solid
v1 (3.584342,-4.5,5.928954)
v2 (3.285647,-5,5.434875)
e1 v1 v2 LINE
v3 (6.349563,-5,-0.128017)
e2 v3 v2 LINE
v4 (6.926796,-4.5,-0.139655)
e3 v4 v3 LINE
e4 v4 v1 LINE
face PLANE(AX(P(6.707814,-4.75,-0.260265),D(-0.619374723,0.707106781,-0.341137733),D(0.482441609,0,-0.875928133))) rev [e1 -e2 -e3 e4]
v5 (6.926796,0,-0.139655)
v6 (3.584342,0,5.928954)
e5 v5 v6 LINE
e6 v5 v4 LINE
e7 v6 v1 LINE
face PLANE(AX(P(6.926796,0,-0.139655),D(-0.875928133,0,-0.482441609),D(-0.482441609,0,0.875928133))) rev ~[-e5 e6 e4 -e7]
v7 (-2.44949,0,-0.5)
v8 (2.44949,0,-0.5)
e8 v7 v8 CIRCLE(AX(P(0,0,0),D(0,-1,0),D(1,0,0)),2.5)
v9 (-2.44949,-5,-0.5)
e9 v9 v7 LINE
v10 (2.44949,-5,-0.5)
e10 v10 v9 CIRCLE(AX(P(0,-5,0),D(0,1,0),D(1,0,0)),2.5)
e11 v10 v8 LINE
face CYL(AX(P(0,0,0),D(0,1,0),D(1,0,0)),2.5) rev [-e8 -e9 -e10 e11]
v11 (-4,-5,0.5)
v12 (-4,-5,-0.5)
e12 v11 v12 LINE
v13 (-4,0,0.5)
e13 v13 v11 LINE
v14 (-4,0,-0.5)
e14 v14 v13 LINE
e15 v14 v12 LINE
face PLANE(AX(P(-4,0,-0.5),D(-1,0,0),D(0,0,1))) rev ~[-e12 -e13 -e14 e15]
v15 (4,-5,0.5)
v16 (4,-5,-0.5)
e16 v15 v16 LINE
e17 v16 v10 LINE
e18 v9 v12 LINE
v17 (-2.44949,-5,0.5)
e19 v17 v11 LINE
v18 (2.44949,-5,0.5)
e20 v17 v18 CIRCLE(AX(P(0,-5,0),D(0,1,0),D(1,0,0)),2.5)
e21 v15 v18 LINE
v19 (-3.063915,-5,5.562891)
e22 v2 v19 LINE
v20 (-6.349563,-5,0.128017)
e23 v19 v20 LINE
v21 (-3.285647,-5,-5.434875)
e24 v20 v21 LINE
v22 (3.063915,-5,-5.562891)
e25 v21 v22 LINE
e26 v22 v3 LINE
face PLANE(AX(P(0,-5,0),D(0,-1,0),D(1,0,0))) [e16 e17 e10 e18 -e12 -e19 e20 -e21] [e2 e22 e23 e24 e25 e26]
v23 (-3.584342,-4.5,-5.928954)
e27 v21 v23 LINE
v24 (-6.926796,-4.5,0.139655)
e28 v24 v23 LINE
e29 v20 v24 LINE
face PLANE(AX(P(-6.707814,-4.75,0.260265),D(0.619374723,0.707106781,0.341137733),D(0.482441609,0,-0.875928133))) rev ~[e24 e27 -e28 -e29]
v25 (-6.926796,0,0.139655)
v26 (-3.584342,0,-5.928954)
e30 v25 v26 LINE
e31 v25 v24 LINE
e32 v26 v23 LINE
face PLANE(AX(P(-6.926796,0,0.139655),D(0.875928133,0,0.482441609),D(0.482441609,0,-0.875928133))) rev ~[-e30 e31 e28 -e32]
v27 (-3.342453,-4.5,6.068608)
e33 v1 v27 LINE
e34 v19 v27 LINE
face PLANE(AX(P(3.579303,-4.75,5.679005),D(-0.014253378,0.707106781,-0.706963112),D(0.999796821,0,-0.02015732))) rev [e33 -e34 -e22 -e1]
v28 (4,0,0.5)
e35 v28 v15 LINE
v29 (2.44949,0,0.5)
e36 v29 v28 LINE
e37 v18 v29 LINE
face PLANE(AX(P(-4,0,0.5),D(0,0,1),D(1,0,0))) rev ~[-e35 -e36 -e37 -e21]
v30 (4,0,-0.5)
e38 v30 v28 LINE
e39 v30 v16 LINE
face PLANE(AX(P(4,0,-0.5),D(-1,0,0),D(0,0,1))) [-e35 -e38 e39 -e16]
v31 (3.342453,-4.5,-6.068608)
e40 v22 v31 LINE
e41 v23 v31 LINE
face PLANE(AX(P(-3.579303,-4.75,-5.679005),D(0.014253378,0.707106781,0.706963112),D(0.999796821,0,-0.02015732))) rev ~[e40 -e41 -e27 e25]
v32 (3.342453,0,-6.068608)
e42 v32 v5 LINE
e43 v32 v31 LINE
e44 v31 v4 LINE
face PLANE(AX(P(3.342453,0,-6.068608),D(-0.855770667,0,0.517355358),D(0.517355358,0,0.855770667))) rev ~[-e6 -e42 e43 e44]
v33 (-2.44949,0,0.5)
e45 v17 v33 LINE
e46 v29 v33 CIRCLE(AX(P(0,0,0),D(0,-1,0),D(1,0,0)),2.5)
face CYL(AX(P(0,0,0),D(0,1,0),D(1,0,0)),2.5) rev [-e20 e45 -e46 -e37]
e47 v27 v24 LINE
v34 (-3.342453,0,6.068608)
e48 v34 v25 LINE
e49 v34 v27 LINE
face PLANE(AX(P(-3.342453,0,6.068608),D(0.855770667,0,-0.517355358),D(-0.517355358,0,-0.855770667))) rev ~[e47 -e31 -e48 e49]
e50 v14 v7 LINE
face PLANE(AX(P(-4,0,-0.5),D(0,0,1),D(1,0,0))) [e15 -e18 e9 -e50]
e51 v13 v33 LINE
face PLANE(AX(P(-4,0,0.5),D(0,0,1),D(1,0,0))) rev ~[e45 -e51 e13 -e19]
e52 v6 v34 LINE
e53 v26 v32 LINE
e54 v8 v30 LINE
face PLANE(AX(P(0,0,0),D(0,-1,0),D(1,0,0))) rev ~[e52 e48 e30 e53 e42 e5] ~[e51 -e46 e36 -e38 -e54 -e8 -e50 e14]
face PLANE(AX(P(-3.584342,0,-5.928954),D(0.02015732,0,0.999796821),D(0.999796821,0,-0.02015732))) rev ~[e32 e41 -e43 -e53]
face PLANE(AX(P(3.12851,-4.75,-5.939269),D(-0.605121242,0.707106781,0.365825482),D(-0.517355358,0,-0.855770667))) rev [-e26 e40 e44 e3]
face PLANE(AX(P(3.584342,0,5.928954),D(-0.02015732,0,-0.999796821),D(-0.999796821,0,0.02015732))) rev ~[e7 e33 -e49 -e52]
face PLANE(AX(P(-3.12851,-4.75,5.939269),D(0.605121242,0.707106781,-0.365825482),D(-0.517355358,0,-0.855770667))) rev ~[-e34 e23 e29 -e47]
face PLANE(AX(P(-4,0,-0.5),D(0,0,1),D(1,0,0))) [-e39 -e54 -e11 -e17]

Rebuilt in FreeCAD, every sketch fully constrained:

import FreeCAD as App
import Part
import Sketcher
Q = App.Units.Quantity


def edges_at(feature, points):
    """Names of the edges that pass closest to the given points."""
    edges = feature.Shape.Edges
    near = lambda p: min(range(len(edges)), key=lambda i: edges[i].distToShape(Part.Vertex(*p))[0])
    return sorted({f"Edge{near(p) + 1}" for p in points})

doc = App.newDocument("Part")
body = doc.addObject("PartDesign::Body", "Body")

# Sketch on XZ plane
sketch1 = body.newObject("Sketcher::SketchObject", "Sketch")
sketch1.AttachmentSupport = (doc.getObject("XZ_Plane"), [""])
sketch1.MapMode = "FlatFace"
sketch1.addGeometry([
    Part.LineSegment(App.Vector(7, 0, 0), App.Vector(4, 6, 0)),  # 0
    Part.LineSegment(App.Vector(4, 6, 0), App.Vector(-3, 6, 0)),  # 1
    Part.LineSegment(App.Vector(-3, 6, 0), App.Vector(-7, 0, 0)),  # 2
    Part.LineSegment(App.Vector(-7, 0, 0), App.Vector(-4, -6, 0)),  # 3
    Part.LineSegment(App.Vector(-4, -6, 0), App.Vector(3, -6, 0)),  # 4
    Part.LineSegment(App.Vector(3, -6, 0), App.Vector(7, 0, 0)),  # 5
], False)
sketch1.addConstraint([
    Sketcher.Constraint("Coincident", 0, 2, 1, 1),
    Sketcher.Constraint("Coincident", 1, 2, 2, 1),
    Sketcher.Constraint("Coincident", 2, 2, 3, 1),
    Sketcher.Constraint("Coincident", 3, 2, 4, 1),
    Sketcher.Constraint("Coincident", 4, 2, 5, 1),
    Sketcher.Constraint("Coincident", 5, 2, 0, 1),
    Sketcher.Constraint("Symmetric", 0, 2, 3, 2, -1, 1),
    Sketcher.Constraint("Symmetric", 1, 2, 4, 2, -1, 1),
    Sketcher.Constraint("Symmetric", 2, 2, 5, 2, -1, 1),
    Sketcher.Constraint("Equal", 0, 1),
    Sketcher.Constraint("Equal", 1, 2),
    Sketcher.Constraint("DistanceY", 2, 2, 0, 2, Q("5.789299 mm")),
    Sketcher.Constraint("DistanceX", -1, 1, 0, 2, Q("3.584342 mm")),
    Sketcher.Constraint("DistanceY", -1, 1, 1, 2, Q("6.068608 mm")),
    Sketcher.Constraint("DistanceX", 2, 2, 0, 2, Q("10.511138 mm")),
])
pad1 = body.newObject("PartDesign::Pad", "Pad")
pad1.Profile = sketch1
pad1.Length = 5

# Sketch on XZ plane
sketch2 = body.newObject("Sketcher::SketchObject", "Sketch001")
sketch2.AttachmentSupport = (doc.getObject("XZ_Plane"), [""])
sketch2.MapMode = "FlatFace"
sketch2.addGeometry(Part.Circle(App.Vector(0, 0, 0), App.Vector(0, 0, 1), 2.5), False)
sketch2.addConstraint([
    Sketcher.Constraint("Coincident", 0, 3, -1, 1),
    Sketcher.Constraint("Diameter", 0, Q("5 mm")),
])
pocket1 = body.newObject("PartDesign::Pocket", "Pocket")
pocket1.Profile = sketch2
pocket1.Length = 36.487296
pocket1.Reversed = True
doc.recompute()

chamfer = body.newObject("PartDesign::Chamfer", "Chamfer")
chamfer.Base = (pocket1, edges_at(pocket1, [
    (-5.256, -5, -2.895),
    (-5.135, -5, 3.104),
    (0.121, -5, 5.999),
    (5.256, -5, 2.895),
    (-0.121, -5, -5.999),
    (5.135, -5, -3.104),
]))
chamfer.Size = 0.5

# Sketch on XZ plane
sketch3 = body.newObject("Sketcher::SketchObject", "Sketch002")
sketch3.AttachmentSupport = (doc.getObject("XZ_Plane"), [""])
sketch3.MapMode = "FlatFace"
sketch3.addGeometry([
    Part.LineSegment(App.Vector(-4, 0.5, 0), App.Vector(-4, -0.5, 0)),
    Part.LineSegment(App.Vector(-4, -0.5, 0), App.Vector(4, -0.5, 0)),
    Part.LineSegment(App.Vector(4, -0.5, 0), App.Vector(4, 0.5, 0)),
    Part.LineSegment(App.Vector(4, 0.5, 0), App.Vector(-4, 0.5, 0)),
], False)
sketch3.addConstraint([
    Sketcher.Constraint("Coincident", 0, 2, 1, 1),
    Sketcher.Constraint("Coincident", 1, 2, 2, 1),
    Sketcher.Constraint("Coincident", 2, 2, 3, 1),
    Sketcher.Constraint("Coincident", 3, 2, 0, 1),
    Sketcher.Constraint("Vertical", 0),
    Sketcher.Constraint("Horizontal", 1),
    Sketcher.Constraint("Vertical", 2),
    Sketcher.Constraint("Horizontal", 3),
    Sketcher.Constraint("Symmetric", 0, 2, 2, 2, -1, 1),
    Sketcher.Constraint("DistanceX", 1, 1, 1, 2, Q("8 mm")),
    Sketcher.Constraint("DistanceY", 0, 2, 0, 1, Q("1 mm")),
])
pocket2 = body.newObject("PartDesign::Pocket", "Pocket001")
pocket2.Profile = sketch3
pocket2.Length = 5.527664
pocket2.Reversed = True

doc.recompute()
